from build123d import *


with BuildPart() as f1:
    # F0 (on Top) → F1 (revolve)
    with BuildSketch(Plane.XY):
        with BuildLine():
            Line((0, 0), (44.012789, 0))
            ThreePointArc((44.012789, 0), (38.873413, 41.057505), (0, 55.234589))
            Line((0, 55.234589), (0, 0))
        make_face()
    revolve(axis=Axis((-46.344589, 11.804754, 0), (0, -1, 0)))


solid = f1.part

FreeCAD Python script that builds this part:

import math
import FreeCAD as App
import Part
import Sketcher

V = App.Vector

doc = App.newDocument("Part")
body = doc.addObject("PartDesign::Body", "Body")

# Sketch on XY plane
sketch1 = doc.addObject("Sketcher::SketchObject", "Sketch")
body.addObject(sketch1)
sketch1.AttachmentSupport = (doc.XY_Plane, [""])
sketch1.MapMode = "FlatFace"
sketch1.addGeometry(Part.LineSegment(V(0, 0, 0), V(44, 0, 0)), False)
sketch1.addGeometry(Part.ArcOfCircle(Part.Circle(V(8, 16, 0), V(0, 0, 1), 40), math.radians(-24), math.radians(101)), False)
sketch1.addGeometry(Part.LineSegment(V(0, 55, 0), V(0, 0, 0)), False)
sketch1.addGeometry(Part.LineSegment(V(-46, 55, 0), V(-46, 0, 0)), True)  # axis
sketch1.addConstraint(Sketcher.Constraint("Coincident", 0, 2, 1, 1))
sketch1.addConstraint(Sketcher.Constraint("Coincident", 1, 2, 2, 1))
sketch1.addConstraint(Sketcher.Constraint("Coincident", 2, 2, 0, 1))
sketch1.addConstraint(Sketcher.Constraint("Horizontal", 0))
sketch1.addConstraint(Sketcher.Constraint("Vertical", 2))
sketch1.addConstraint(Sketcher.Constraint("Vertical", 3))
sketch1.addConstraint(Sketcher.Constraint("Coincident", 2, 2, -1, 1))
sketch1.addConstraint(Sketcher.Constraint("PointOnObject", 3, 2, -1))
sketch1.addConstraint(Sketcher.Constraint("Horizontal", 1, 2, 3, 1))
sketch1.addConstraint(Sketcher.Constraint("Radius", 1, 39.693323))
sketch1.addConstraint(Sketcher.Constraint("DistanceX", 0, 1, 0, 2, 44.012789))
sketch1.addConstraint(Sketcher.Constraint("DistanceY", 2, 2, 2, 1, 55.234589))
sketch1.addConstraint(Sketcher.Constraint("DistanceX", 3, 1, -1, 1, 46.344589))
revolution = doc.addObject("PartDesign::Revolution", "Revolution")
body.addObject(revolution)
revolution.Profile = sketch1
revolution.ReferenceAxis = (sketch1, ["Axis0"])
revolution.Angle = 360

doc.recompute()
